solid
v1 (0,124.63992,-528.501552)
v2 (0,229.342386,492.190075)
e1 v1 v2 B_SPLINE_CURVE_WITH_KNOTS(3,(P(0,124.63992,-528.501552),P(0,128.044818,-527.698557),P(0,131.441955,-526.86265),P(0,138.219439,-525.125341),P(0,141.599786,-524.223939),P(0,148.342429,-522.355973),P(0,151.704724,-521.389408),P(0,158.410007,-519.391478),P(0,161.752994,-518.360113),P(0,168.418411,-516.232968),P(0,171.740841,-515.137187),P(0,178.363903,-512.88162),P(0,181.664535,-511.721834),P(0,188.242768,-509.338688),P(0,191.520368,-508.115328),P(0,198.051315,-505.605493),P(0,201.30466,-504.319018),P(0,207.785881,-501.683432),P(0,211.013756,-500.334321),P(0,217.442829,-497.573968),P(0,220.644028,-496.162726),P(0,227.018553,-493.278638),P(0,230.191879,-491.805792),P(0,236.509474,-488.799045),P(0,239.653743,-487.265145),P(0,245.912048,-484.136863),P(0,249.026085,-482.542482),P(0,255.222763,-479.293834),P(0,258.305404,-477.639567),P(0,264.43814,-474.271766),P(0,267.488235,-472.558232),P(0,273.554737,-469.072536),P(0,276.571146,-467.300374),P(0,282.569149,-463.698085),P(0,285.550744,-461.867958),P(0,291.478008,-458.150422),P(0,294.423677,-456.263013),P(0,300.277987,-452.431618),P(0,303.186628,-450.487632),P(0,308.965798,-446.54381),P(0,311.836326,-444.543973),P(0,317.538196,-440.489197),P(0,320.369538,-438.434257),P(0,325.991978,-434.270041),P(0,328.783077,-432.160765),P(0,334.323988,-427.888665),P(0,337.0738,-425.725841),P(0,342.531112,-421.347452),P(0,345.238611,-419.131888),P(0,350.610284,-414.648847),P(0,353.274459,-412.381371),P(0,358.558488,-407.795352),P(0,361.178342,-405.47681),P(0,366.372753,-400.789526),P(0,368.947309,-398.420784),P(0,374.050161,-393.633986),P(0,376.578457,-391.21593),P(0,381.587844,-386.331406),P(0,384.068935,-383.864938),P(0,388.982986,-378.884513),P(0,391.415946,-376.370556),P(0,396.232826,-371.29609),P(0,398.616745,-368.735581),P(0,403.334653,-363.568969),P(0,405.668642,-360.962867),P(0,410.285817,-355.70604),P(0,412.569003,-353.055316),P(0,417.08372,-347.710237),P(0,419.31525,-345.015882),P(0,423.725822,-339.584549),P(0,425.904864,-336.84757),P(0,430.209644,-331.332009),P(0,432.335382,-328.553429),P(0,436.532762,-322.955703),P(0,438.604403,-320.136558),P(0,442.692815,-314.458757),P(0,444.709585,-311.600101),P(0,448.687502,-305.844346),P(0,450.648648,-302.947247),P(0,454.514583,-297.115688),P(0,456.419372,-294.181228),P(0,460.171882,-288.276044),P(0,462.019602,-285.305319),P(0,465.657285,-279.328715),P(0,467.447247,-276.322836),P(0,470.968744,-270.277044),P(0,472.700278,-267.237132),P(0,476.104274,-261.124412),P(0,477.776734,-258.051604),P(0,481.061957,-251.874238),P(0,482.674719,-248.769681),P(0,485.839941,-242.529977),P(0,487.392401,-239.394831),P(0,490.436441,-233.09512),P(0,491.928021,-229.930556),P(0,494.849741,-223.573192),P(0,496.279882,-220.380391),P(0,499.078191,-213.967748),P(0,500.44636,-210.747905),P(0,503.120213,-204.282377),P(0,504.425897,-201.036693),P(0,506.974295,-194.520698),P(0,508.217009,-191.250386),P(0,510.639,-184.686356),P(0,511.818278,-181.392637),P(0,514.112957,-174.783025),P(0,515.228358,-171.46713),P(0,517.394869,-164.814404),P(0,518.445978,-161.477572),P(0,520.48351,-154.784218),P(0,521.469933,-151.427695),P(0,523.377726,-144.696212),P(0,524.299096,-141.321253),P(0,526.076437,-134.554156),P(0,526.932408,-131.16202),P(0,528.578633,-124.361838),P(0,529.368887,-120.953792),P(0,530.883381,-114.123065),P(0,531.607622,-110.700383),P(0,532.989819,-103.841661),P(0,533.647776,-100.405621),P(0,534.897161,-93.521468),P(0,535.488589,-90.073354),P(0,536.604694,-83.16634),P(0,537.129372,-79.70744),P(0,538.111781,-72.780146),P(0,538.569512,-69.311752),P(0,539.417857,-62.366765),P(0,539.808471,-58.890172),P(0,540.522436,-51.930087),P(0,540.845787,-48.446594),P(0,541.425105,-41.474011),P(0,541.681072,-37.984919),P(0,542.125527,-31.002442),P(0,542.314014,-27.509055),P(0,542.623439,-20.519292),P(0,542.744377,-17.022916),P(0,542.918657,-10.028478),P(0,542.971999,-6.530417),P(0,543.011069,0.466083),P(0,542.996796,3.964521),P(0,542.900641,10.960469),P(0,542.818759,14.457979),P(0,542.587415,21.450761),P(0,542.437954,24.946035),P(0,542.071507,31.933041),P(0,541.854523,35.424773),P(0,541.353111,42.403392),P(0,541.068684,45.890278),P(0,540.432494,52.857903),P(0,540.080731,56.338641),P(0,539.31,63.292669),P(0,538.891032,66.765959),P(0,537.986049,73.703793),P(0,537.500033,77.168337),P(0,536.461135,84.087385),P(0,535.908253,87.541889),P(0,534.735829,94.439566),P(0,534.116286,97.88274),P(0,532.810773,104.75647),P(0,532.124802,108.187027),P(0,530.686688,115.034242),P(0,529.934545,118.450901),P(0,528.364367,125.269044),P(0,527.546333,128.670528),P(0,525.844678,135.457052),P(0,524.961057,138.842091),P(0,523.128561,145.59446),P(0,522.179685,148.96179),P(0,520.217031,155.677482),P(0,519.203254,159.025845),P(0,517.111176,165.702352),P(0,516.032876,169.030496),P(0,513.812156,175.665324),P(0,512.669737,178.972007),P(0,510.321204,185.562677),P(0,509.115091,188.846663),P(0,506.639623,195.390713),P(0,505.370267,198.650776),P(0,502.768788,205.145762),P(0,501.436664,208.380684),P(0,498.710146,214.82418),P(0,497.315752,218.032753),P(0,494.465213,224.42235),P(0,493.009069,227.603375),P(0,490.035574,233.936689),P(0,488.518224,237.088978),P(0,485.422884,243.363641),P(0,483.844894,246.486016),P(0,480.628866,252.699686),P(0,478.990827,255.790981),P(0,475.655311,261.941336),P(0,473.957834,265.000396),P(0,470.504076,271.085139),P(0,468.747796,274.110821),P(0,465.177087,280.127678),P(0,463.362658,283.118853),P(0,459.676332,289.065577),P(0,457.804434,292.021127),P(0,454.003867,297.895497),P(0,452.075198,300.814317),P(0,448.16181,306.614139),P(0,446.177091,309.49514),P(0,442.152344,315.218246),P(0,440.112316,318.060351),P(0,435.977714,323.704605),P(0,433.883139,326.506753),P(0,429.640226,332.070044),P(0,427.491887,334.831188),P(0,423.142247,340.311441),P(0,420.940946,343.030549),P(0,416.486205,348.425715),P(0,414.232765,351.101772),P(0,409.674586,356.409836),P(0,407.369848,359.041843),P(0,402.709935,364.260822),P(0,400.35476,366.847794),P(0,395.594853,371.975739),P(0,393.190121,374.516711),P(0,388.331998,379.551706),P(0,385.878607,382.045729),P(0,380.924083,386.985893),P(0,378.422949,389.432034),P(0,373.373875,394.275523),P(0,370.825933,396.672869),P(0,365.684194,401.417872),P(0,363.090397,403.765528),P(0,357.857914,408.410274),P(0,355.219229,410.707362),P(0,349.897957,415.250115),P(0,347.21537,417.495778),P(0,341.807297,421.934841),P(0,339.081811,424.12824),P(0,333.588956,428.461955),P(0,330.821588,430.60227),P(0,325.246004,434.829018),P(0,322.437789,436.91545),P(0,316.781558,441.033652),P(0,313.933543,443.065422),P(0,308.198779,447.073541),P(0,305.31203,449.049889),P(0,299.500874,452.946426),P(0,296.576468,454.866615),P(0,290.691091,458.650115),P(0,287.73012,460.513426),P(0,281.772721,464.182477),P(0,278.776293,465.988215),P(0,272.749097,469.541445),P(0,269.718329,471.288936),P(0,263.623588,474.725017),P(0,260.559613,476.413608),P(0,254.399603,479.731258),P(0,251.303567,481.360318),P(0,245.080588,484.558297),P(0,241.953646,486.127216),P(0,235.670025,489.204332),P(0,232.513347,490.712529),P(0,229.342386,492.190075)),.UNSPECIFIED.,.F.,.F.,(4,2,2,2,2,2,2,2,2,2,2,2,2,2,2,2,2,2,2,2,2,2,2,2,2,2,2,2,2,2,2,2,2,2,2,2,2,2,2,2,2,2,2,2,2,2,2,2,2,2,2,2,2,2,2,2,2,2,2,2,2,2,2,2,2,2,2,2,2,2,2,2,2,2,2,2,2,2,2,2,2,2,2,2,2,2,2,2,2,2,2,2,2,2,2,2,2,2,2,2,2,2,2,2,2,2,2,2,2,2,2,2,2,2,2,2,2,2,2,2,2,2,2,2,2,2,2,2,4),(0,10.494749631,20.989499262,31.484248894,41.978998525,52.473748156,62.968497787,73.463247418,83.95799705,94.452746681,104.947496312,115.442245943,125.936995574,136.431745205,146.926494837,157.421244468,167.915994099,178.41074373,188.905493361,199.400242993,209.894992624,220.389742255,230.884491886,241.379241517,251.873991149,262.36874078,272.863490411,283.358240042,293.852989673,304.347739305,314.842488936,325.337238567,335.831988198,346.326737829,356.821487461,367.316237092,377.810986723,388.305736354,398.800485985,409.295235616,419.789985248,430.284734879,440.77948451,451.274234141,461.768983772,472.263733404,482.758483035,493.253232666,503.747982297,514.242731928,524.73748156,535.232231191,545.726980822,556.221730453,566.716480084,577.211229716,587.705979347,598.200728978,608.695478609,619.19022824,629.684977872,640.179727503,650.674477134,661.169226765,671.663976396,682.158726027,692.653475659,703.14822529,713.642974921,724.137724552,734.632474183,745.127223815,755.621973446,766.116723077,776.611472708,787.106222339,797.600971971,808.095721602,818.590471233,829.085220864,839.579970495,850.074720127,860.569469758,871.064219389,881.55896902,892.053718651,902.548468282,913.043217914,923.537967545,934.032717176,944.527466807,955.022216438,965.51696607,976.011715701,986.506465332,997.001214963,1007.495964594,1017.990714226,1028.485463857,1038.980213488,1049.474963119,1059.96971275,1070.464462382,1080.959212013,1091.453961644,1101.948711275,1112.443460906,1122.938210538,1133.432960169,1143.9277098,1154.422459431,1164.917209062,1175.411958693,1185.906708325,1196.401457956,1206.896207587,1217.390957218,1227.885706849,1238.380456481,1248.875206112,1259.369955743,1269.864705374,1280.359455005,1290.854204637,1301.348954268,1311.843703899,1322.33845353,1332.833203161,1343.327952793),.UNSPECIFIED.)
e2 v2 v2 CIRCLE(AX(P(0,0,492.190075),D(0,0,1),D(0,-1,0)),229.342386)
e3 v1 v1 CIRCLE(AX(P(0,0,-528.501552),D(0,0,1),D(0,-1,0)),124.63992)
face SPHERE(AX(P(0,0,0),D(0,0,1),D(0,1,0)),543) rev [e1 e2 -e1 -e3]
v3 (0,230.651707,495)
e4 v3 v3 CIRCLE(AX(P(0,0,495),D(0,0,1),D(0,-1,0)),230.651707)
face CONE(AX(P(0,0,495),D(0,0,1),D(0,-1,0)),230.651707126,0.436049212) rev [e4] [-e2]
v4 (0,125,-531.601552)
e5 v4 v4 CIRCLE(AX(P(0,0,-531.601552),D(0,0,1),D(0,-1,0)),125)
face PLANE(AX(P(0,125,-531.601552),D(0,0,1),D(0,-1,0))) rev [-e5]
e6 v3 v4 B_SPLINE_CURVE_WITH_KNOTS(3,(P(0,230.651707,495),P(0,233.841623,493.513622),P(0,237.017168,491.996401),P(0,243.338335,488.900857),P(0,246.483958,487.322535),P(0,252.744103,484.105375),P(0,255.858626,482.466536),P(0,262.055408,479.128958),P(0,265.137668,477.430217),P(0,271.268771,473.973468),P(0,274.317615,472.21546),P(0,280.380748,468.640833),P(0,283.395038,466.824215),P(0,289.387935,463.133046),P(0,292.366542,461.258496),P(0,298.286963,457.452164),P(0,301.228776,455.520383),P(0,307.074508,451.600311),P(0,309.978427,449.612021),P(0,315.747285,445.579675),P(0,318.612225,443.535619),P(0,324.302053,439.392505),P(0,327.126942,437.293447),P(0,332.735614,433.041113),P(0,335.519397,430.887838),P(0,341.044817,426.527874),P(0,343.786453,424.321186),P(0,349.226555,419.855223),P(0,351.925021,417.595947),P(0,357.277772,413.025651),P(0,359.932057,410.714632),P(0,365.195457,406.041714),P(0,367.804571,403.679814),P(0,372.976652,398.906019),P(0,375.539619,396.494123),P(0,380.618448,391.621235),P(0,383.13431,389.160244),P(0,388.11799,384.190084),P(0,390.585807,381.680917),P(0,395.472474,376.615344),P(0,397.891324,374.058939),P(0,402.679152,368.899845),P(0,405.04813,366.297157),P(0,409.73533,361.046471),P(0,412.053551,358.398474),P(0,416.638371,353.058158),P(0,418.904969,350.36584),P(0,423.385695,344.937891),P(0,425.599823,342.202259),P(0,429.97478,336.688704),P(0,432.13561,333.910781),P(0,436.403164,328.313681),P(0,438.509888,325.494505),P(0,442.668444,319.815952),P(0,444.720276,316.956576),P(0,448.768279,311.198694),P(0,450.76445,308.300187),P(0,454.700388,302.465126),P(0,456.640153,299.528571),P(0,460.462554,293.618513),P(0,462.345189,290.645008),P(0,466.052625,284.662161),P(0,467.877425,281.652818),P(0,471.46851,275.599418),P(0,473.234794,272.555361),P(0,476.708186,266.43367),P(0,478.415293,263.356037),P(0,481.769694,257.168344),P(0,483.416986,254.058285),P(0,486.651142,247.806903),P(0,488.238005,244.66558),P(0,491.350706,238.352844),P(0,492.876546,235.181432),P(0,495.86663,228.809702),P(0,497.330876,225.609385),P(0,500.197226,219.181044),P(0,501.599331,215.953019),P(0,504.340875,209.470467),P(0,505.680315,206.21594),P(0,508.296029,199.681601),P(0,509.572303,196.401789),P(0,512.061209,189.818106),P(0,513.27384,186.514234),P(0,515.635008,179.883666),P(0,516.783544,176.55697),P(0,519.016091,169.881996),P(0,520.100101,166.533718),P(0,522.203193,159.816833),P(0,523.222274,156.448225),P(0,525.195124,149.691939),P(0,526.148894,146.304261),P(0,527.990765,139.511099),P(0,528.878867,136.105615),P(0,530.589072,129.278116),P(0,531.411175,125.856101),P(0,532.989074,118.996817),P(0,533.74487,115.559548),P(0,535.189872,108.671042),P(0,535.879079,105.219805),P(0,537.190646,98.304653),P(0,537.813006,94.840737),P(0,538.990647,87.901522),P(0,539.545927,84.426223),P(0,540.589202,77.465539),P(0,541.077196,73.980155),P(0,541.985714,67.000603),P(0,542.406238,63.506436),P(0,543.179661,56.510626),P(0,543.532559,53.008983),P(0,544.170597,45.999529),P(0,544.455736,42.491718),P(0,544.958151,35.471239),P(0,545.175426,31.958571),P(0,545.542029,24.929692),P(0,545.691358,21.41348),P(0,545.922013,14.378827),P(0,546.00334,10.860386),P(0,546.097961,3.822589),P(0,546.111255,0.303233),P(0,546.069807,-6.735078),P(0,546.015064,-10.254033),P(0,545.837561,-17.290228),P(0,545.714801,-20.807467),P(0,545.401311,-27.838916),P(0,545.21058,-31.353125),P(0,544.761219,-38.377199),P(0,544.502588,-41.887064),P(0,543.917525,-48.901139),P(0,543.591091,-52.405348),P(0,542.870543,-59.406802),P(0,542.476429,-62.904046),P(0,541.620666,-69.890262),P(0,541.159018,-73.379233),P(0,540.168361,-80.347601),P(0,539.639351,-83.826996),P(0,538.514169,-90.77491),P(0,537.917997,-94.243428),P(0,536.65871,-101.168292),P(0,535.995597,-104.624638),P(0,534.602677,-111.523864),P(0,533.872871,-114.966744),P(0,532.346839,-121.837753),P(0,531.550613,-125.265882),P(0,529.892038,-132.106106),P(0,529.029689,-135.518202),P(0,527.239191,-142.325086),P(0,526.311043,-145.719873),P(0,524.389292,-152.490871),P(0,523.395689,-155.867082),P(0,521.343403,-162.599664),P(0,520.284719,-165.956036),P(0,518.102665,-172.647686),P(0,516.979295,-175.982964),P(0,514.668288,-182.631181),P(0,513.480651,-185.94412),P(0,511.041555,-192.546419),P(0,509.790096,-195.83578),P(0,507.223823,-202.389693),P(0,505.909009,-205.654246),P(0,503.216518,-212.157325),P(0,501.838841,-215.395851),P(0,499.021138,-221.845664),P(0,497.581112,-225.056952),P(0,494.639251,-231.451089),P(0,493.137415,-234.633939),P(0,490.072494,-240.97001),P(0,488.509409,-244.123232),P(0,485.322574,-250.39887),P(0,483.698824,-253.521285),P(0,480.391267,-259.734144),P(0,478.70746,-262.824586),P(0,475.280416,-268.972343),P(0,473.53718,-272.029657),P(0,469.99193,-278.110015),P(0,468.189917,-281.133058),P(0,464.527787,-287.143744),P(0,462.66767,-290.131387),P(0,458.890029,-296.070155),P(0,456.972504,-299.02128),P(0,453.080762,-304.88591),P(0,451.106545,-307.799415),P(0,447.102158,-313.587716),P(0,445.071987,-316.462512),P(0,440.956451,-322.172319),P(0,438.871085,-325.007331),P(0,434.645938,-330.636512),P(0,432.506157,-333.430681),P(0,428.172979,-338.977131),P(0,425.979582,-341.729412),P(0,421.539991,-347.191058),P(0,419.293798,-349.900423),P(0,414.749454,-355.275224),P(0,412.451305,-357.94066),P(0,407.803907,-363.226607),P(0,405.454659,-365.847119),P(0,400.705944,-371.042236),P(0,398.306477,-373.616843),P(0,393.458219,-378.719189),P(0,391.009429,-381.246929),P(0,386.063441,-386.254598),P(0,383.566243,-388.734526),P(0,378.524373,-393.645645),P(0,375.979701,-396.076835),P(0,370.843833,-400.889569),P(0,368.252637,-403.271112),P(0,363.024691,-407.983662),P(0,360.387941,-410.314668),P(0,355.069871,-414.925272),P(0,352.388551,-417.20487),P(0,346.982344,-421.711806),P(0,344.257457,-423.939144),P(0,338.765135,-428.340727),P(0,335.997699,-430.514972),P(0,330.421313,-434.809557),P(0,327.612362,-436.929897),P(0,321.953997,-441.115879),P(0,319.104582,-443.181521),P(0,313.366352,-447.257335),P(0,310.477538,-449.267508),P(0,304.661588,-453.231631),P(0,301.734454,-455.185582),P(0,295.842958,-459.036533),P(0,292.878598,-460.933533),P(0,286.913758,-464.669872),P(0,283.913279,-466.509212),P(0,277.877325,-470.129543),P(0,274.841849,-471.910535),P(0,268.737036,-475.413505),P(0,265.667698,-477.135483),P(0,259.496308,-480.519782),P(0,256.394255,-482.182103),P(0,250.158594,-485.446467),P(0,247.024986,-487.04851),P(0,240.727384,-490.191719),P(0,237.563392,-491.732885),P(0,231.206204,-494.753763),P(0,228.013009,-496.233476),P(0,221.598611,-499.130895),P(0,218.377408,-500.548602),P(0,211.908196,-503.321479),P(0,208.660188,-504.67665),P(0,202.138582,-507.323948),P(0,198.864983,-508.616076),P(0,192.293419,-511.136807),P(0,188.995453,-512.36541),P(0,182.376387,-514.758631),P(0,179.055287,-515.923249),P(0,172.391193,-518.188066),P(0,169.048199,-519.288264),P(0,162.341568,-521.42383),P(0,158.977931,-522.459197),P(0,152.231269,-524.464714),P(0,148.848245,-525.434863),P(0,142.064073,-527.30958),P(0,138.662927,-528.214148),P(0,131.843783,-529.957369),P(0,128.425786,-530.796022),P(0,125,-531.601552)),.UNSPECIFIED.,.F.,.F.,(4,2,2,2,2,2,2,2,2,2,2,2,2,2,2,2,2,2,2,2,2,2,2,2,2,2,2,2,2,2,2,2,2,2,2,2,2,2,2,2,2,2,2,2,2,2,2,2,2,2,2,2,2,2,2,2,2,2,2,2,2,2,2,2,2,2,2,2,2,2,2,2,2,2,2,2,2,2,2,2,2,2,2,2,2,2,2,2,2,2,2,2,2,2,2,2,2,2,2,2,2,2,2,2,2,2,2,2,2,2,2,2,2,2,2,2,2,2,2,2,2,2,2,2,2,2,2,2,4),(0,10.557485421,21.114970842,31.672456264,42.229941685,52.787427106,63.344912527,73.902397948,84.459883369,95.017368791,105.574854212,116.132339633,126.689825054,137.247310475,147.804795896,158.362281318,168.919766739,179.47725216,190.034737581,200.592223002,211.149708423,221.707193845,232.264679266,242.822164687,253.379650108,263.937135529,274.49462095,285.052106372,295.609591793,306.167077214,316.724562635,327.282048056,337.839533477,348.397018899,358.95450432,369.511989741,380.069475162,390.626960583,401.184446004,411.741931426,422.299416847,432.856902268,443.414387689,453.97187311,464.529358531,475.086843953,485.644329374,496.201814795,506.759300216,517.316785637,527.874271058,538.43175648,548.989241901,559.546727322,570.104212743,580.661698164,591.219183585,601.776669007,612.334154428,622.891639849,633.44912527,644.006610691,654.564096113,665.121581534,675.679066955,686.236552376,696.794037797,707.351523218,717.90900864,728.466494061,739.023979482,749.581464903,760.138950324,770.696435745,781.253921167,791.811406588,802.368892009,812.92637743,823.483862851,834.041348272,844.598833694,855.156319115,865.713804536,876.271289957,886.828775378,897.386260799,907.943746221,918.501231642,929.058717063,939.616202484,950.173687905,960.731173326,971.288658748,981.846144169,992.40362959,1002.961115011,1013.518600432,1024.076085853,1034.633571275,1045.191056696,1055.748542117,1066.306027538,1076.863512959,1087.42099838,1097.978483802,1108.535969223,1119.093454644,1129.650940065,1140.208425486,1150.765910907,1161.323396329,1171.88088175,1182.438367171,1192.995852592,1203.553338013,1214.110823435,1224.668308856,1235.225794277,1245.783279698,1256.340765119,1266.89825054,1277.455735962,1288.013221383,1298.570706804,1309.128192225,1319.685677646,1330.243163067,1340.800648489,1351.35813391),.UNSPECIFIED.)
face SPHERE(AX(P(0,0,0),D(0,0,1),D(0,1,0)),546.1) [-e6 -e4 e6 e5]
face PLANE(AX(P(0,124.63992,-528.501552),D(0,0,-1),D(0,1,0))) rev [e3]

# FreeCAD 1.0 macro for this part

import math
import FreeCAD as App
import Part
import Sketcher
Q = App.Units.Quantity

doc = App.newDocument("Part")
params = doc.addObject("Spreadsheet::Sheet", "Params")
for row, (alias, value) in enumerate([
    ("sketch1_radius", "543 mm"),
    ("sketch1_radius2", "546.1 mm"),
    ("sketch1_width", "125 mm"),
    ("sketch1_height", "3.1 mm"),
    ("revolution_angle", "360 deg"),
], start=1):
    params.set(f"A{row}", alias)
    params.set(f"B{row}", "=" + value)
    params.setAlias(f"B{row}", alias)

body = doc.addObject("PartDesign::Body", "Body")

# Sketch on YZ plane
sketch1 = body.newObject("Sketcher::SketchObject", "Sketch")
sketch1.AttachmentSupport = (doc.getObject("YZ_Plane"), [""])
sketch1.MapMode = "FlatFace"
sketch1.addGeometry(Part.LineSegment(App.Vector(124.6, -528.5, 0), App.Vector(0, -528.5, 0)), False)
sketch1.addGeometry(Part.LineSegment(App.Vector(0, -528.5, 0), App.Vector(0, -531.6, 0)), False)
sketch1.addGeometry(Part.LineSegment(App.Vector(0, -531.6, 0), App.Vector(125, -531.6, 0)), False)
sketch1.addGeometry(Part.ArcOfCircle(Part.Circle(App.Vector(0, 0, 0), App.Vector(0, 0, 1), 546.1), math.radians(-77), math.radians(65)), False)
sketch1.addGeometry(Part.LineSegment(App.Vector(230.7, 495, 0), App.Vector(229.3, 492.2, 0)), False)
sketch1.addGeometry(Part.ArcOfCircle(Part.Circle(App.Vector(0, 0, 0), App.Vector(0, 0, 1), 543), math.radians(-77), math.radians(65)), False)
sketch1.addConstraint(Sketcher.Constraint("Coincident", 0, 2, 1, 1))
sketch1.addConstraint(Sketcher.Constraint("Coincident", 1, 2, 2, 1))
sketch1.addConstraint(Sketcher.Constraint("Coincident", 2, 2, 3, 1))
sketch1.addConstraint(Sketcher.Constraint("Coincident", 3, 2, 4, 1))
sketch1.addConstraint(Sketcher.Constraint("Coincident", 4, 2, 5, 2))
sketch1.addConstraint(Sketcher.Constraint("Coincident", 5, 1, 0, 1))
sketch1.addConstraint(Sketcher.Constraint("Horizontal", 0))
sketch1.addConstraint(Sketcher.Constraint("Vertical", 1))
sketch1.addConstraint(Sketcher.Constraint("Horizontal", 2))
sketch1.addConstraint(Sketcher.Constraint("Coincident", 3, 3, -1, 1))
sketch1.addConstraint(Sketcher.Constraint("Coincident", 5, 3, -1, 1))
sketch1.addConstraint(Sketcher.Constraint("PointOnObject", 0, 2, -2))
sketch1.addConstraint(Sketcher.Constraint("Radius", 5, Q("543 mm")))
sketch1.addConstraint(Sketcher.Constraint("Radius", 3, Q("546.1 mm")))
sketch1.addConstraint(Sketcher.Constraint("DistanceX", 2, 1, 2, 2, Q("125 mm")))
sketch1.addConstraint(Sketcher.Constraint("DistanceY", 1, 2, 1, 1, Q("3.1 mm")))
sketch1.addConstraint(Sketcher.Constraint("DistanceX", 4, 2, 3, 2, Q("1.309321 mm")))
sketch1.addConstraint(Sketcher.Constraint("DistanceX", -1, 1, 4, 2, Q("229.342386 mm")))
sketch1.setExpression("Constraints[12]", "Params.sketch1_radius")
sketch1.setExpression("Constraints[13]", "Params.sketch1_radius2")
sketch1.setExpression("Constraints[14]", "Params.sketch1_width")
sketch1.setExpression("Constraints[15]", "Params.sketch1_height")
revolution = body.newObject("PartDesign::Revolution", "Revolution")
revolution.Profile = sketch1
revolution.ReferenceAxis = (sketch1, ["V_Axis"])
revolution.setExpression("Angle", "Params.revolution_angle")

doc.recompute()
